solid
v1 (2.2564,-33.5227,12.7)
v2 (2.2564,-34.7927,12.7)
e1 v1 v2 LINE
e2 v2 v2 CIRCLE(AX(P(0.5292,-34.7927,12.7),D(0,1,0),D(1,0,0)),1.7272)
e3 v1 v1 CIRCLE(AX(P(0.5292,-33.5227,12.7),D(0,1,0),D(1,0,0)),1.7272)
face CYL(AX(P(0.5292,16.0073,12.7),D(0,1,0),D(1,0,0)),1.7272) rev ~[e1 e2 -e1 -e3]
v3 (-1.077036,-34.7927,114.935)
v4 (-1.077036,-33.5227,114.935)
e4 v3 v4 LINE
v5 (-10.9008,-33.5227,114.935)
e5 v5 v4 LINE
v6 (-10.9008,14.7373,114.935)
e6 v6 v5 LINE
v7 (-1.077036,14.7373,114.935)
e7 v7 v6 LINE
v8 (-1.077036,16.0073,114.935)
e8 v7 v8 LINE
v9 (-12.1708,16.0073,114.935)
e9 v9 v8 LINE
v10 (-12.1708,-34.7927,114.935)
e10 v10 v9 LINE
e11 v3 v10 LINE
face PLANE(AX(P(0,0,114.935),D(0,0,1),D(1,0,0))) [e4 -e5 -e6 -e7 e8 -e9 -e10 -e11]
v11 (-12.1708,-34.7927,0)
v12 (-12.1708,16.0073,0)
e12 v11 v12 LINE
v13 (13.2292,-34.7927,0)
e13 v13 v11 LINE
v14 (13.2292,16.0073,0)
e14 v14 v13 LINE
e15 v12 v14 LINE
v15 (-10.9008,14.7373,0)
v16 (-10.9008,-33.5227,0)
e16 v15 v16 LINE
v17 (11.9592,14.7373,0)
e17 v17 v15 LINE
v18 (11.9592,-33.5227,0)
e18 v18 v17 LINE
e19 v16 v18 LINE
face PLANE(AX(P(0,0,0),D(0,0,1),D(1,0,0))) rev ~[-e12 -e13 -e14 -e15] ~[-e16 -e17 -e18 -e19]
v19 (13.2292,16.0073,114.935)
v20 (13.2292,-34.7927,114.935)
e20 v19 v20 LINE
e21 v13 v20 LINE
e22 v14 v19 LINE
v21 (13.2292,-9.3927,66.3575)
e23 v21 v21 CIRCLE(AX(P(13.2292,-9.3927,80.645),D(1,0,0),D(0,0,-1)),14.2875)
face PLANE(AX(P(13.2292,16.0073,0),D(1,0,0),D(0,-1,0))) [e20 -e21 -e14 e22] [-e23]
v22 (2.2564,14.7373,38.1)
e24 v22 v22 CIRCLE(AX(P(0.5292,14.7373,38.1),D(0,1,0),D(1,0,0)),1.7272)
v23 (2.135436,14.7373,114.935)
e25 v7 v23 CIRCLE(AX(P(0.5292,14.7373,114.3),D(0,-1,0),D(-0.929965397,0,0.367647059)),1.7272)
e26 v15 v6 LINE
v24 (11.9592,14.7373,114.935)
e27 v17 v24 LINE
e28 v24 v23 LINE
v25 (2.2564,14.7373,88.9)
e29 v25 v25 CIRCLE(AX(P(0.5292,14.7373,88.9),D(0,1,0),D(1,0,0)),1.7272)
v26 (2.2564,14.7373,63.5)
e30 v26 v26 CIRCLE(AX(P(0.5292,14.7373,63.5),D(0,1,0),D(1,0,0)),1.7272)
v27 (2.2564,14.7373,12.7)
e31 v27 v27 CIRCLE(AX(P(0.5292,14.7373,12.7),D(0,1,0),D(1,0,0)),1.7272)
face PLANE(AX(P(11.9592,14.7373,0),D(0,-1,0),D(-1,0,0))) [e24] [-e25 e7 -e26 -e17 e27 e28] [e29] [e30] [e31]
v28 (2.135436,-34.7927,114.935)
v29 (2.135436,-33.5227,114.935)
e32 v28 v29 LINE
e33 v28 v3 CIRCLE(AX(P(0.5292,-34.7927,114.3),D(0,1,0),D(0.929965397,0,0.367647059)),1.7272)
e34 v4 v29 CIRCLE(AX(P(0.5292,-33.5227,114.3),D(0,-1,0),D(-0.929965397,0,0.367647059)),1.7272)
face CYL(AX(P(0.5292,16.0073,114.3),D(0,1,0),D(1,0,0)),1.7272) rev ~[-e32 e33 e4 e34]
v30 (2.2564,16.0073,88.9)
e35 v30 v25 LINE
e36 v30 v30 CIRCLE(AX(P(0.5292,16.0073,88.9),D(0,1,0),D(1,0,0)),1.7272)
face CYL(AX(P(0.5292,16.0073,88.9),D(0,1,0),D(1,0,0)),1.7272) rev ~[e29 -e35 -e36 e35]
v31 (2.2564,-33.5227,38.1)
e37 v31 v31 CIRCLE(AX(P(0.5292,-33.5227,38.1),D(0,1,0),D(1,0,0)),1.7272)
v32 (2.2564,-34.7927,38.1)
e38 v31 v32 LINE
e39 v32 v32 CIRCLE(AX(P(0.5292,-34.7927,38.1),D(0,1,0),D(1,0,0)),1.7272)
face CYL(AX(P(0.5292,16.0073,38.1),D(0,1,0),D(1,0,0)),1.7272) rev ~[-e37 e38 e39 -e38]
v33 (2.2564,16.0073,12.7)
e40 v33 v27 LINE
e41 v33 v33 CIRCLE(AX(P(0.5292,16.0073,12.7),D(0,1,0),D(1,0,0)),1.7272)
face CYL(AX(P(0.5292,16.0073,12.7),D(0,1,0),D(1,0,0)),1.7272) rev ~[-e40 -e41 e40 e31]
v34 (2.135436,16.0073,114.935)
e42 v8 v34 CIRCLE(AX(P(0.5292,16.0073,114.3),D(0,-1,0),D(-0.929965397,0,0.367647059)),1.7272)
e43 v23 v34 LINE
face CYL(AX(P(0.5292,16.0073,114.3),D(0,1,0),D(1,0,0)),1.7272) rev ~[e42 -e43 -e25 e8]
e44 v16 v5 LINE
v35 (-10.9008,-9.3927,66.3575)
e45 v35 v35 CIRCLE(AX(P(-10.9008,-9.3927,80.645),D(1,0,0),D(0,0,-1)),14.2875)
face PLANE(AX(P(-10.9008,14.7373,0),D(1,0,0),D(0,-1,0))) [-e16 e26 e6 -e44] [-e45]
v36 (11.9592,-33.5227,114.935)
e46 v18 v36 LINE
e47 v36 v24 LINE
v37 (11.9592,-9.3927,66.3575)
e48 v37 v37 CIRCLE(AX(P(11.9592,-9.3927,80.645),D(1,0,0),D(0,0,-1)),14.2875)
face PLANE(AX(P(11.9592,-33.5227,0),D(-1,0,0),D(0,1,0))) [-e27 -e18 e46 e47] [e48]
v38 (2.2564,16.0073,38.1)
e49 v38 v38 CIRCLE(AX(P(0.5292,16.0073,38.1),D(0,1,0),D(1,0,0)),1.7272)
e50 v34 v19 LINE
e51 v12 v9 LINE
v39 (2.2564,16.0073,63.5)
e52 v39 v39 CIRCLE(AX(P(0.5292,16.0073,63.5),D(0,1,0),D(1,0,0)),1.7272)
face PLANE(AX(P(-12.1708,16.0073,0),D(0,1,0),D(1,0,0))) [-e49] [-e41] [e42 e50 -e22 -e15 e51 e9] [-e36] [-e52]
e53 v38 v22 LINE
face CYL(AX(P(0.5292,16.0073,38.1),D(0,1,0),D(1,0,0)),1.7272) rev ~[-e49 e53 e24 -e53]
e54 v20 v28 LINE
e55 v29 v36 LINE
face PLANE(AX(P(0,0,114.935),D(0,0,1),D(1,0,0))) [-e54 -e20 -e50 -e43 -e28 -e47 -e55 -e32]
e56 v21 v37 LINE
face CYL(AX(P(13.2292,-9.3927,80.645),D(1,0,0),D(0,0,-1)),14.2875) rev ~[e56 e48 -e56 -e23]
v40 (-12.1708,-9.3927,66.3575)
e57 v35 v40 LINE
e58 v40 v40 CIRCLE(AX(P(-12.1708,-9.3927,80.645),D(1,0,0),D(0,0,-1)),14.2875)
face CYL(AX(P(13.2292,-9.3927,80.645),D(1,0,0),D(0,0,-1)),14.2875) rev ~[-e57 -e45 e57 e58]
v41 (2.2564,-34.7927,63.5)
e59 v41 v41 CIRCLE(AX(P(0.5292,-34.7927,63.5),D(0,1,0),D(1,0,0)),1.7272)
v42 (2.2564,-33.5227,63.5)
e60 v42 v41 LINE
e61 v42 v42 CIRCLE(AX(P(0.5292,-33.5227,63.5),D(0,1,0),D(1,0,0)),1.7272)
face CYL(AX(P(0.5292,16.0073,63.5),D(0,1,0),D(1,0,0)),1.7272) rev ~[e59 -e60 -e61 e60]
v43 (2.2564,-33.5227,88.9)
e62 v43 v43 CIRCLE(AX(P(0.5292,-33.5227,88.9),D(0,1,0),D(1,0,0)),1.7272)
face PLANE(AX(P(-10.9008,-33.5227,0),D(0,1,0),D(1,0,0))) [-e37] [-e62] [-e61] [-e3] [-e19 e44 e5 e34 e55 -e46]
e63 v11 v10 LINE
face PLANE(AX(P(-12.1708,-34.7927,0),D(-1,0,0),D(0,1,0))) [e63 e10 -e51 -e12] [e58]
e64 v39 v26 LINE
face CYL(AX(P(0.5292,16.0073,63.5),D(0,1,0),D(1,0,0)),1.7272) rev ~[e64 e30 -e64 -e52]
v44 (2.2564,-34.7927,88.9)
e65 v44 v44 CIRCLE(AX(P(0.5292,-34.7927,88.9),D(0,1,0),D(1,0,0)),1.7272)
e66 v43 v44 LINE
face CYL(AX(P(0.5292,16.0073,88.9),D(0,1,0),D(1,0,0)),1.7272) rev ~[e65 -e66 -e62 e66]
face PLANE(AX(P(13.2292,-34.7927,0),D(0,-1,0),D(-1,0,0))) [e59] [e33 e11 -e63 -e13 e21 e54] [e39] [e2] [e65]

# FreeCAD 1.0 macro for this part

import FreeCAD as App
import Part
import Sketcher

V = App.Vector
Q = App.Units.Quantity


def add_polygon(sketch, points):
    """Adds a closed chain of lines whose ends are joined by coincident constraints."""
    first, n = sketch.GeometryCount, len(points)
    for a, b in zip(points, points[1:] + points[:1]):
        sketch.addGeometry(Part.LineSegment(App.Vector(*a, 0), App.Vector(*b, 0)), False)
    for i in range(n):
        sketch.addConstraint(Sketcher.Constraint("Coincident", first + i, 2, first + (i + 1) % n, 1))

doc = App.newDocument("Part")
body = doc.addObject("PartDesign::Body", "Body")

# Sketch on XY plane
sketch1 = body.newObject("Sketcher::SketchObject", "Sketch")
sketch1.AttachmentSupport = (doc.getObject("XY_Plane"), [""])
sketch1.MapMode = "FlatFace"
add_polygon(sketch1, [(13, 16), (-12, 16), (-12, -35), (13, -35)])  # lines 0-3
add_polygon(sketch1, [(-11, 15), (12, 15), (12, -34), (-11, -34)])  # lines 4-7
sketch1.addConstraint([
    Sketcher.Constraint("Horizontal", 0),
    Sketcher.Constraint("Vertical", 1),
    Sketcher.Constraint("Horizontal", 2),
    Sketcher.Constraint("Vertical", 3),
    Sketcher.Constraint("Horizontal", 4),
    Sketcher.Constraint("Vertical", 5),
    Sketcher.Constraint("Horizontal", 6),
    Sketcher.Constraint("Vertical", 7),
    Sketcher.Constraint("DistanceX", 0, 2, 0, 1, Q("1 in")),
    Sketcher.Constraint("DistanceY", 1, 2, 1, 1, Q("2 in")),
    Sketcher.Constraint("DistanceX", 4, 2, 3, 2, Q("0.05 in")),
    Sketcher.Constraint("DistanceY", 4, 2, 3, 2, Q("0.05 in")),
    Sketcher.Constraint("DistanceY", 2, 2, 5, 2, Q("0.05 in")),
    Sketcher.Constraint("DistanceX", 1, 2, 6, 2, Q("0.05 in")),
    Sketcher.Constraint("DistanceY", -1, 1, 0, 2, Q("0.6302 in")),
    Sketcher.Constraint("DistanceX", 0, 2, -1, 1, 12.1708),
])
pad1 = body.newObject("PartDesign::Pad", "Pad")
pad1.Profile = sketch1
pad1.Length = Q("4.525 in")

# Sketch on XZ plane
sketch2 = body.newObject("Sketcher::SketchObject", "Sketch001")
sketch2.AttachmentSupport = (doc.getObject("XZ_Plane"), [""])
sketch2.MapMode = "FlatFace"
sketch2.AttachmentOffset = App.Placement(V(0, 0, -0.6302087 * 25.4), App.Rotation())
sketch2.addGeometry(Part.Circle(V(0.5, 12.7, 0), V(0, 0, 1), 1.7), False)
sketch2.addConstraint([
    Sketcher.Constraint("Diameter", 0, Q("0.136 in")),
    Sketcher.Constraint("DistanceY", -1, 1, 0, 3, Q("0.5 in")),
    Sketcher.Constraint("DistanceX", -1, 1, 0, 3, 0.5292),
])
pocket1 = body.newObject("PartDesign::Pocket", "Pocket")
pocket1.Profile = sketch2
pocket1.Type = "ThroughAll"
pocket1.Reversed = True
doc.recompute()

linearpattern = body.newObject("PartDesign::LinearPattern", "LinearPattern")
linearpattern.Originals = [pocket1]
linearpattern.Direction = (doc.getObject("Z_Axis"), [""])
linearpattern.Mode = "offset"
linearpattern.Offset = Q("1 in")
linearpattern.Occurrences = 11
body.Tip = linearpattern

# Sketch on YZ plane
sketch3 = body.newObject("Sketcher::SketchObject", "Sketch002")
sketch3.AttachmentSupport = (doc.getObject("YZ_Plane"), [""])
sketch3.MapMode = "FlatFace"
sketch3.AttachmentOffset = App.Placement(V(0, 0, 13.2292), App.Rotation())
sketch3.addGeometry(Part.Circle(V(-9, 81, 0), V(0, 0, 1), 14), False)
sketch3.addConstraint([
    Sketcher.Constraint("Diameter", 0, Q("1.125 in")),
    Sketcher.Constraint("DistanceY", -1, 1, 0, 3, Q("3.175 in")),
    Sketcher.Constraint("DistanceX", 0, 3, -1, 1, Q("0.3698 in")),
])
pocket2 = body.newObject("PartDesign::Pocket", "Pocket001")
pocket2.Profile = sketch3
pocket2.Type = "ThroughAll"

doc.recompute()
